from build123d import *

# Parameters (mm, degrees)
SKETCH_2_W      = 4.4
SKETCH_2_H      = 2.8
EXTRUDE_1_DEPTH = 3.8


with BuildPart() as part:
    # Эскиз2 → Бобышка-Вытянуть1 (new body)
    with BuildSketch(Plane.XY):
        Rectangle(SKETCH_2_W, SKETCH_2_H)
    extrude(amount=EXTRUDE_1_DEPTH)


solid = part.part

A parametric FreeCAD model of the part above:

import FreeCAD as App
import Part
import Sketcher

V = App.Vector
Q = App.Units.Quantity

doc = App.newDocument("Part")
body = doc.addObject("PartDesign::Body", "Body")

sketch1 = body.newObject("Sketcher::SketchObject", "Sketch")
sketch1.AttachmentSupport = (doc.getObject("XY_Plane"), [""])
sketch1.MapMode = "FlatFace"
sketch1.addGeometry([
    Part.LineSegment(V(-2.2, 1.4, 0), V(-2.2, -1.4, 0)),
    Part.LineSegment(V(-2.2, -1.4, 0), V(2.2, -1.4, 0)),
    Part.LineSegment(V(2.2, -1.4, 0), V(2.2, 1.4, 0)),
    Part.LineSegment(V(2.2, 1.4, 0), V(-2.2, 1.4, 0)),
], False)
sketch1.addConstraint([
    Sketcher.Constraint("Coincident", 0, 2, 1, 1),
    Sketcher.Constraint("Coincident", 1, 2, 2, 1),
    Sketcher.Constraint("Coincident", 2, 2, 3, 1),
    Sketcher.Constraint("Coincident", 3, 2, 0, 1),
    Sketcher.Constraint("Vertical", 0),
    Sketcher.Constraint("Horizontal", 1),
    Sketcher.Constraint("Vertical", 2),
    Sketcher.Constraint("Horizontal", 3),
    Sketcher.Constraint("Symmetric", 0, 2, 2, 2, -1, 1),
    Sketcher.Constraint("DistanceX", 1, 1, 1, 2, Q("4.4 mm")),
    Sketcher.Constraint("DistanceY", 0, 2, 0, 1, Q("2.8 mm")),
])
pad1 = body.newObject("PartDesign::Pad", "Pad")
pad1.Profile = sketch1
pad1.Length = 3.8

doc.recompute()
